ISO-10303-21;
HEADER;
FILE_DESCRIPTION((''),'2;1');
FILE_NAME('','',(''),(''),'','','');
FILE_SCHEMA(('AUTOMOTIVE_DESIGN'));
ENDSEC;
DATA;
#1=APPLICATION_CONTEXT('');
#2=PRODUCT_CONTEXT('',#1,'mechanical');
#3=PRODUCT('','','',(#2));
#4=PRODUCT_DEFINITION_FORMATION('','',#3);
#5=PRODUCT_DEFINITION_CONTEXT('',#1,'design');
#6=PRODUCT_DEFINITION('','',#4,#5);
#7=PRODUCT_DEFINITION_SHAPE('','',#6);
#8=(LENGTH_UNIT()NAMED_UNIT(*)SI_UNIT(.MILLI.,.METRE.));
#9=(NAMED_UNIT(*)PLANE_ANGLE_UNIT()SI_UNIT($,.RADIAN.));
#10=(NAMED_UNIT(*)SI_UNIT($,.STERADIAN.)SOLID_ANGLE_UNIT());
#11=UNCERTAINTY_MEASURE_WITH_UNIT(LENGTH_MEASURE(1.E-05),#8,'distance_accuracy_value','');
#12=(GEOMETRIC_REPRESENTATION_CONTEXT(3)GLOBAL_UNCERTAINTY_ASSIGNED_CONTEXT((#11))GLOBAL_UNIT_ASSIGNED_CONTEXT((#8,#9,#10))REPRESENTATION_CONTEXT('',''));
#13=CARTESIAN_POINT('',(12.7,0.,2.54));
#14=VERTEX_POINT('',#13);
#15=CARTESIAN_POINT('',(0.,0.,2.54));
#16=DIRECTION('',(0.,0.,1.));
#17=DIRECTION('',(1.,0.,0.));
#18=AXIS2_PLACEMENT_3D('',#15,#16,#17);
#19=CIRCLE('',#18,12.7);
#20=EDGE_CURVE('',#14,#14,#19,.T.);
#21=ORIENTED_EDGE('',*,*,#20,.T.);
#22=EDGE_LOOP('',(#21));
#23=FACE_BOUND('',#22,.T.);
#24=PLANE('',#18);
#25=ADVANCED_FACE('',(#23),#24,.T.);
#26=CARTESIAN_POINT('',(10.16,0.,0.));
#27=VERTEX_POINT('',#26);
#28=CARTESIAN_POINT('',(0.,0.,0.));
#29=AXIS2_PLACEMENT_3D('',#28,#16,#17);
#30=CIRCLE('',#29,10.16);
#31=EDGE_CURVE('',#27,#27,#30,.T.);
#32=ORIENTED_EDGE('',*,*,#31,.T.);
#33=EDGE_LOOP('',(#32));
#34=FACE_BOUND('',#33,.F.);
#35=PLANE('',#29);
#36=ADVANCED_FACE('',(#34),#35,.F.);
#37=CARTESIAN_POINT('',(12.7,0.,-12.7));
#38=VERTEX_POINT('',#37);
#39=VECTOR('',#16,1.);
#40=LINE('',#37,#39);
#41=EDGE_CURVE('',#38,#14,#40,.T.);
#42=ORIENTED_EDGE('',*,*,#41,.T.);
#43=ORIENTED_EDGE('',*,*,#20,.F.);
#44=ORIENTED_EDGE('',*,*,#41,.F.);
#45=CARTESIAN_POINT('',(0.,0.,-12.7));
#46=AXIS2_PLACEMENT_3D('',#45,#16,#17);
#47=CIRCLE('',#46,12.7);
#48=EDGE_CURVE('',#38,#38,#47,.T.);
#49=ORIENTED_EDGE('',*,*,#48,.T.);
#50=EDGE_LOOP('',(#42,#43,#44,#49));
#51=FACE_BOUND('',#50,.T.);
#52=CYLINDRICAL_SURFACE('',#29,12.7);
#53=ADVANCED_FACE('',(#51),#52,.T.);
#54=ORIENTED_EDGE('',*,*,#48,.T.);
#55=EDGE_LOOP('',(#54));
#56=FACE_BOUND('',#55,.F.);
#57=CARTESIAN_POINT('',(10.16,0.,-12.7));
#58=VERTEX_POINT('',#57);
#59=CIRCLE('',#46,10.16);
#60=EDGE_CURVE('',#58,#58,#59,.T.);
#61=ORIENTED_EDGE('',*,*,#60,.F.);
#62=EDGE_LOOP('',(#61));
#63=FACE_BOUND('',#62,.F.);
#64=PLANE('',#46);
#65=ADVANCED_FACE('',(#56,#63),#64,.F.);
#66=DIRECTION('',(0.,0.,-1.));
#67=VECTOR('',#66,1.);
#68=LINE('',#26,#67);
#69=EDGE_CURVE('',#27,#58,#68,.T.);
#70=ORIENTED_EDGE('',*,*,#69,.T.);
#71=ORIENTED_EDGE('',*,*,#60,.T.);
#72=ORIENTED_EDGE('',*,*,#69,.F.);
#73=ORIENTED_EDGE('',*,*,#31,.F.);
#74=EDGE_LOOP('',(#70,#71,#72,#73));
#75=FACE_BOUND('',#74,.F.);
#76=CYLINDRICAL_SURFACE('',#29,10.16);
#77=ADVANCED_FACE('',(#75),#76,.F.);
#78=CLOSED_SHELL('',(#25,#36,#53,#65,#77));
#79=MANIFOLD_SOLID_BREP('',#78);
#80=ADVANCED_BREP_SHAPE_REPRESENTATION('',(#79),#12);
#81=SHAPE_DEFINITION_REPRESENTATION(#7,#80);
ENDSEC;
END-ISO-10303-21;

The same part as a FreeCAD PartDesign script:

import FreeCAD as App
import Part
import Sketcher

V = App.Vector
Q = App.Units.Quantity

doc = App.newDocument("Part")
body = doc.addObject("PartDesign::Body", "Body")

# Sketch on XY plane
sketch1 = doc.addObject("Sketcher::SketchObject", "Sketch")
body.addObject(sketch1)
sketch1.AttachmentSupport = (doc.XY_Plane, [""])
sketch1.MapMode = "FlatFace"
sketch1.addGeometry(Part.Circle(V(0, 0, 0), V(0, 0, 1), 12.7), False)
sketch1.addConstraint(Sketcher.Constraint("Coincident", 0, 3, -1, 1))
sketch1.addConstraint(Sketcher.Constraint("Diameter", 0, Q("1 in")))
pad1 = doc.addObject("PartDesign::Pad", "Pad")
body.addObject(pad1)
pad1.Profile = sketch1
pad1.Length = Q("0.1 in")

# Sketch on XY plane
sketch2 = doc.addObject("Sketcher::SketchObject", "Sketch001")
body.addObject(sketch2)
sketch2.AttachmentSupport = (doc.XY_Plane, [""])
sketch2.MapMode = "FlatFace"
sketch2.addGeometry(Part.Circle(V(0, 0, 0), V(0, 0, 1), 12.7), False)
sketch2.addGeometry(Part.Circle(V(0, 0, 0), V(0, 0, 1), 10.16), False)
sketch2.addConstraint(Sketcher.Constraint("Coincident", 0, 3, -1, 1))
sketch2.addConstraint(Sketcher.Constraint("Coincident", 1, 3, -1, 1))
sketch2.addConstraint(Sketcher.Constraint("Diameter", 0, Q("1 in")))
sketch2.addConstraint(Sketcher.Constraint("Diameter", 1, Q("0.8 in")))
pad2 = doc.addObject("PartDesign::Pad", "Pad001")
body.addObject(pad2)
pad2.Profile = sketch2
pad2.Length = Q("0.5 in")
pad2.Reversed = True

doc.recompute()
